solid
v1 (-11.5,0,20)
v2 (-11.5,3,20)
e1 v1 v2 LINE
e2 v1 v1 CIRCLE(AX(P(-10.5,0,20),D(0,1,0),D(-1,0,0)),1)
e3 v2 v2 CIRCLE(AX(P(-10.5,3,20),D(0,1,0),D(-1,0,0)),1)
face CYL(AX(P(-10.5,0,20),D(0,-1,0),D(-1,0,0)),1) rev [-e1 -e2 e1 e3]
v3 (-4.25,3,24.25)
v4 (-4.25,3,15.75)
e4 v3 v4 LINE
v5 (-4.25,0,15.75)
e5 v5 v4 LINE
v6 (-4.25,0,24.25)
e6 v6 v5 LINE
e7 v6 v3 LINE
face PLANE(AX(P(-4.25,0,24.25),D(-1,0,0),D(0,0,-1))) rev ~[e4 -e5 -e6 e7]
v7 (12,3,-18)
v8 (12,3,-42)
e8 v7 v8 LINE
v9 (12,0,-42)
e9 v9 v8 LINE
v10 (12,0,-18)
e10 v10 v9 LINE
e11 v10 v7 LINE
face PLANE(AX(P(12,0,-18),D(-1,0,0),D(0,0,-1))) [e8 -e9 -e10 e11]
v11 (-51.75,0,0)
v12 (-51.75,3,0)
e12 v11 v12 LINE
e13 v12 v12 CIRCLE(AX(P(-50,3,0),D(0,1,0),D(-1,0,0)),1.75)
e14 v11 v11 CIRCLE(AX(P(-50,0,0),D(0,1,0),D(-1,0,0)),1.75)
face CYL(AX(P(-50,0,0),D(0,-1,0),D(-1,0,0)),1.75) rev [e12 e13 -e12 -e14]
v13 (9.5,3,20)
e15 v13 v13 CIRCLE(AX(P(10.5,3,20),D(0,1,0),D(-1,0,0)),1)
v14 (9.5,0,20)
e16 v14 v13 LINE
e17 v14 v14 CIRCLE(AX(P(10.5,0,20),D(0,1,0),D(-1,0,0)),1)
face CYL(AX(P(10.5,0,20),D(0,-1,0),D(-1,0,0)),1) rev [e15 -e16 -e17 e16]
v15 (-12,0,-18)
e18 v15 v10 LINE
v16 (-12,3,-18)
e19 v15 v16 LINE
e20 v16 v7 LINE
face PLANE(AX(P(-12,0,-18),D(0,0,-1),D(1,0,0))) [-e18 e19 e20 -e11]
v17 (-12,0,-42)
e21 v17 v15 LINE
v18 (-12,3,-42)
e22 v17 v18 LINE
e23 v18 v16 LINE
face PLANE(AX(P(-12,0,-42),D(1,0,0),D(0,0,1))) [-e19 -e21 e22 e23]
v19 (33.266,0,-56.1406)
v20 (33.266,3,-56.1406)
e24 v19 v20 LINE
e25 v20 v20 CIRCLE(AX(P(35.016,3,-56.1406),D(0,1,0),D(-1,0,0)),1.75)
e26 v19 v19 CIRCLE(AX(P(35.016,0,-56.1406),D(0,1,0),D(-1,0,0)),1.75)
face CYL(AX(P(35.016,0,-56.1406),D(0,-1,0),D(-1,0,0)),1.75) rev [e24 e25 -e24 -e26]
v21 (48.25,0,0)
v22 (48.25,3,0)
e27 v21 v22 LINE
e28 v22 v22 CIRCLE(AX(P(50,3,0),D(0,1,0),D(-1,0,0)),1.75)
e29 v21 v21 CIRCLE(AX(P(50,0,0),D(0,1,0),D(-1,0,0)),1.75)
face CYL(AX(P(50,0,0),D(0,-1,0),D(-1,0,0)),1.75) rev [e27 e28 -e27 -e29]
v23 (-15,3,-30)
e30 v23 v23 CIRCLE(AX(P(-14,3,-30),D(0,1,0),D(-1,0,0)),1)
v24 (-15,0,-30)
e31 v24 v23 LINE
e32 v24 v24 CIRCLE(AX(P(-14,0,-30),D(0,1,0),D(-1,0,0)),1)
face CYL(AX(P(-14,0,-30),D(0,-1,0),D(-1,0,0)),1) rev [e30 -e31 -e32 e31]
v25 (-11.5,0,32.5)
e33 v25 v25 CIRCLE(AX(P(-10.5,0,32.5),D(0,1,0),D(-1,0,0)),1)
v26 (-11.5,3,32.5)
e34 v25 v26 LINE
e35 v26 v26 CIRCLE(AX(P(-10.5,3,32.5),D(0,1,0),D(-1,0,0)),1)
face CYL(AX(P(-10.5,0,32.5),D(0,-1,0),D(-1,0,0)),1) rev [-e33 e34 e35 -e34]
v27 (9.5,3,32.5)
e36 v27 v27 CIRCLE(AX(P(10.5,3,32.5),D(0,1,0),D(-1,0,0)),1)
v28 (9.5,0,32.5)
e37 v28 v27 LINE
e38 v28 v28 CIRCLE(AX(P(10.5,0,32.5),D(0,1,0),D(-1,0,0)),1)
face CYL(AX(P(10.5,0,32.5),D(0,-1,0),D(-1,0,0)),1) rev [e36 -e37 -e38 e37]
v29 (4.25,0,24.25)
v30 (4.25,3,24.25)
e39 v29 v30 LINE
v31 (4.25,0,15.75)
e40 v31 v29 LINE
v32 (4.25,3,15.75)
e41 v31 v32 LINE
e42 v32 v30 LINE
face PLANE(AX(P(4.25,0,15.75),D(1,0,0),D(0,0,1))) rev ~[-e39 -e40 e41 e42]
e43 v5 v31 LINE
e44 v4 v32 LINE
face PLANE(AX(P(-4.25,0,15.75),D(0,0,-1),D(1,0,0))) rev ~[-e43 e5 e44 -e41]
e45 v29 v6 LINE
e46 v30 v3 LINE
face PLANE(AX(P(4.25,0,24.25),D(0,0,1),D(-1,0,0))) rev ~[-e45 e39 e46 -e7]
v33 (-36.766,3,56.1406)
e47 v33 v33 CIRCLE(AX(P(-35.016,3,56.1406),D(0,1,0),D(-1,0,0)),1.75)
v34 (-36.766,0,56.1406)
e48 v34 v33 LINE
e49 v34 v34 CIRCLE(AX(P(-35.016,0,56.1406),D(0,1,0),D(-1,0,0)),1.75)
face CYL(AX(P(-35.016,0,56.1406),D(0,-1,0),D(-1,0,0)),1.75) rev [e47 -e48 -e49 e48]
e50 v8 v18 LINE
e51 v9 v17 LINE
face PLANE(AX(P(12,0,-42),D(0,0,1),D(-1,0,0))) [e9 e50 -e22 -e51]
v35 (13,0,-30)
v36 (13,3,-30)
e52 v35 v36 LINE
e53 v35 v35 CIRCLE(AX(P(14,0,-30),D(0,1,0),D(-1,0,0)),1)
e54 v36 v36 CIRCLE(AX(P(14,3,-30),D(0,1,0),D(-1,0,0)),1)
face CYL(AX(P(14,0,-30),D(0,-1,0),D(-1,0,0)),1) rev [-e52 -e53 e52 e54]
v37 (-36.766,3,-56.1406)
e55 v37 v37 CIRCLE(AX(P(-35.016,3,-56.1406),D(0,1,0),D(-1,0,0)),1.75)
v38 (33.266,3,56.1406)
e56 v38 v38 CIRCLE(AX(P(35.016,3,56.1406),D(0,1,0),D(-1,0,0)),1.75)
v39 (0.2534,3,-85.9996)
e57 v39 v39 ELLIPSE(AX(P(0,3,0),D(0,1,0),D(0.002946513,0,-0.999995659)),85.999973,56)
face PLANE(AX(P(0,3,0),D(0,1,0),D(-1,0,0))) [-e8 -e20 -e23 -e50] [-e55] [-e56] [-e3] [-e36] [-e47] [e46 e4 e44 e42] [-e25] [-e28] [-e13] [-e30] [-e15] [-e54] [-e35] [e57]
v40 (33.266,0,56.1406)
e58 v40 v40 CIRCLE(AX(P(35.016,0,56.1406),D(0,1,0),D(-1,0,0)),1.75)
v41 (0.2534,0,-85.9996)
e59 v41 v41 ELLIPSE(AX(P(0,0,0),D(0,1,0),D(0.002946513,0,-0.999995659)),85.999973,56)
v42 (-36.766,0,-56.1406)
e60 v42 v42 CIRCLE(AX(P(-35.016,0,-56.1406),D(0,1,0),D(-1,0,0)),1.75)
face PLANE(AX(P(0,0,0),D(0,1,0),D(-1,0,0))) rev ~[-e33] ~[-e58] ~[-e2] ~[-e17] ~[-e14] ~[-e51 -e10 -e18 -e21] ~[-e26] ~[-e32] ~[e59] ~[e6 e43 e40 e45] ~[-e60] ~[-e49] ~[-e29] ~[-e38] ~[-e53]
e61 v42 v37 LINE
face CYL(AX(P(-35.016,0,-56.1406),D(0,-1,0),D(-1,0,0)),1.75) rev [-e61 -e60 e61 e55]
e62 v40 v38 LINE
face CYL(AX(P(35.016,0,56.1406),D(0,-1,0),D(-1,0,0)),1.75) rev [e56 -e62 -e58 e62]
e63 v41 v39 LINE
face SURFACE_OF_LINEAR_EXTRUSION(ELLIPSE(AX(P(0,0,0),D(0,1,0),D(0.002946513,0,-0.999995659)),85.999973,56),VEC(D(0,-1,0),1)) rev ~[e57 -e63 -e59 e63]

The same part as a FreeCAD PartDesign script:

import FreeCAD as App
import Part
import Sketcher
from FreeCAD import Vector

doc = App.newDocument("Part")
body = doc.addObject("PartDesign::Body", "Body")

sketch1 = doc.addObject("Sketcher::SketchObject", "Sketch")
body.addObject(sketch1)
sketch1.AttachmentSupport = (doc.XZ_Plane, [""])
sketch1.MapMode = "FlatFace"
sketch1.addGeometry(Part.Ellipse(Vector(0.2534, -85.9996, 0), Vector(55.999757, 0.165005, 0), Vector(0, 0, 0)), False)
sketch1.addGeometry(Part.Circle(Vector(35.016, -56.1406, 0), Vector(0, 0, 1), 1.75), False)
sketch1.addGeometry(Part.Circle(Vector(14, -30, 0), Vector(0, 0, 1), 1), False)
sketch1.addGeometry(Part.Circle(Vector(-35.016, -56.1406, 0), Vector(0, 0, 1), 1.75), False)
sketch1.addGeometry(Part.LineSegment(Vector(12, -18, 0), Vector(-12, -18, 0)), False)
sketch1.addGeometry(Part.LineSegment(Vector(-12, -18, 0), Vector(-12, -42, 0)), False)
sketch1.addGeometry(Part.LineSegment(Vector(-12, -42, 0), Vector(12, -42, 0)), False)
sketch1.addGeometry(Part.LineSegment(Vector(12, -42, 0), Vector(12, -18, 0)), False)
sketch1.addGeometry(Part.Circle(Vector(-14, -30, 0), Vector(0, 0, 1), 1), False)
sketch1.addGeometry(Part.Circle(Vector(50, 0, 0), Vector(0, 0, 1), 1.75), False)
sketch1.addGeometry(Part.Circle(Vector(10.5, 20, 0), Vector(0, 0, 1), 1), False)
sketch1.addGeometry(Part.Circle(Vector(10.5, 32.5, 0), Vector(0, 0, 1), 1), False)
sketch1.addGeometry(Part.Circle(Vector(35.016, 56.1406, 0), Vector(0, 0, 1), 1.75), False)
sketch1.addGeometry(Part.LineSegment(Vector(4.25, 15.75, 0), Vector(4.25, 24.25, 0)), False)
sketch1.addGeometry(Part.LineSegment(Vector(4.25, 24.25, 0), Vector(-4.25, 24.25, 0)), False)
sketch1.addGeometry(Part.LineSegment(Vector(-4.25, 24.25, 0), Vector(-4.25, 15.75, 0)), False)
sketch1.addGeometry(Part.LineSegment(Vector(-4.25, 15.75, 0), Vector(4.25, 15.75, 0)), False)
sketch1.addGeometry(Part.Circle(Vector(-10.5, 20, 0), Vector(0, 0, 1), 1), False)
sketch1.addGeometry(Part.Circle(Vector(-10.5, 32.5, 0), Vector(0, 0, 1), 1), False)
sketch1.addGeometry(Part.Circle(Vector(-50, 0, 0), Vector(0, 0, 1), 1.75), False)
sketch1.addGeometry(Part.Circle(Vector(-35.016, 56.1406, 0), Vector(0, 0, 1), 1.75), False)
sketch1.addConstraint(Sketcher.Constraint("Block", 0))
sketch1.addConstraint(Sketcher.Constraint("Coincident", 4, 2, 5, 1))
sketch1.addConstraint(Sketcher.Constraint("Coincident", 5, 2, 6, 1))
sketch1.addConstraint(Sketcher.Constraint("Coincident", 6, 2, 7, 1))
sketch1.addConstraint(Sketcher.Constraint("Coincident", 7, 2, 4, 1))
sketch1.addConstraint(Sketcher.Constraint("Coincident", 13, 2, 14, 1))
sketch1.addConstraint(Sketcher.Constraint("Coincident", 14, 2, 15, 1))
sketch1.addConstraint(Sketcher.Constraint("Coincident", 15, 2, 16, 1))
sketch1.addConstraint(Sketcher.Constraint("Coincident", 16, 2, 13, 1))
sketch1.addConstraint(Sketcher.Constraint("Horizontal", 4))
sketch1.addConstraint(Sketcher.Constraint("Vertical", 5))
sketch1.addConstraint(Sketcher.Constraint("Horizontal", 6))
sketch1.addConstraint(Sketcher.Constraint("Vertical", 7))
sketch1.addConstraint(Sketcher.Constraint("Vertical", 13))
sketch1.addConstraint(Sketcher.Constraint("Horizontal", 14))
sketch1.addConstraint(Sketcher.Constraint("Vertical", 15))
sketch1.addConstraint(Sketcher.Constraint("Horizontal", 16))
sketch1.addConstraint(Sketcher.Constraint("Equal", 1, 3))
sketch1.addConstraint(Sketcher.Constraint("Equal", 2, 8))
sketch1.addConstraint(Sketcher.Constraint("Equal", 3, 9))
sketch1.addConstraint(Sketcher.Constraint("Equal", 8, 10))
sketch1.addConstraint(Sketcher.Constraint("Equal", 10, 11))
sketch1.addConstraint(Sketcher.Constraint("Equal", 9, 12))
sketch1.addConstraint(Sketcher.Constraint("Equal", 11, 17))
sketch1.addConstraint(Sketcher.Constraint("Equal", 17, 18))
sketch1.addConstraint(Sketcher.Constraint("Equal", 12, 19))
sketch1.addConstraint(Sketcher.Constraint("Equal", 19, 20))
sketch1.addConstraint(Sketcher.Constraint("Symmetric", 3, 3, 12, 3, -1, 1))
sketch1.addConstraint(Sketcher.Constraint("Symmetric", 9, 3, 19, 3, -1, 1))
sketch1.addConstraint(Sketcher.Constraint("Symmetric", 1, 3, 20, 3, -1, 1))
sketch1.addConstraint(Sketcher.Constraint("Symmetric", 1, 3, 3, 3, -2))
sketch1.addConstraint(Sketcher.Constraint("Symmetric", 2, 3, 8, 3, -2))
sketch1.addConstraint(Sketcher.Constraint("Symmetric", 10, 3, 17, 3, -2))
sketch1.addConstraint(Sketcher.Constraint("Symmetric", 11, 3, 18, 3, -2))
sketch1.addConstraint(Sketcher.Constraint("PointOnObject", 9, 3, -1))
sketch1.addConstraint(Sketcher.Constraint("Vertical", 10, 3, 11, 3))
sketch1.addConstraint(Sketcher.Constraint("Equal", 6, 5))
sketch1.addConstraint(Sketcher.Constraint("Equal", 16, 13))
sketch1.addConstraint(Sketcher.Constraint("Diameter", 2, 2.0))
sketch1.addConstraint(Sketcher.Constraint("Diameter", 1, 3.5))
sketch1.addConstraint(Sketcher.Constraint("DistanceX", 4, 2, 4, 1, 24.0))
sketch1.addConstraint(Sketcher.Constraint("DistanceX", 14, 2, 14, 1, 8.5))
sketch1.addConstraint(Sketcher.Constraint("DistanceY", 2, 3, -1, 1, 30.0))
sketch1.addConstraint(Sketcher.Constraint("DistanceX", -1, 1, 9, 3, 50.0))
sketch1.addConstraint(Sketcher.Constraint("DistanceY", -1, 1, 10, 3, 20.0))
sketch1.addConstraint(Sketcher.Constraint("DistanceX", 4, 2, -1, 1, 12.0))
sketch1.addConstraint(Sketcher.Constraint("DistanceX", 8, 3, 2, 3, 28.0))
sketch1.addConstraint(Sketcher.Constraint("DistanceX", 17, 3, 10, 3, 21.0))
sketch1.addConstraint(Sketcher.Constraint("DistanceY", 8, 3, 4, 2, 12.0))
sketch1.addConstraint(Sketcher.Constraint("DistanceY", 10, 3, 11, 3, 12.5))
sketch1.addConstraint(Sketcher.Constraint("DistanceX", -1, 1, 13, 2, 4.25))
sketch1.addConstraint(Sketcher.Constraint("DistanceY", 10, 3, 13, 2, 4.25))
sketch1.addConstraint(Sketcher.Constraint("DistanceX", -1, 1, 1, 3, 35.016))
sketch1.addConstraint(Sketcher.Constraint("DistanceY", 1, 3, -1, 1, 56.1406))
pad1 = doc.addObject("PartDesign::Pad", "Pad")
body.addObject(pad1)
pad1.Profile = sketch1
pad1.Length = 3
pad1.Reversed = True

doc.recompute()
